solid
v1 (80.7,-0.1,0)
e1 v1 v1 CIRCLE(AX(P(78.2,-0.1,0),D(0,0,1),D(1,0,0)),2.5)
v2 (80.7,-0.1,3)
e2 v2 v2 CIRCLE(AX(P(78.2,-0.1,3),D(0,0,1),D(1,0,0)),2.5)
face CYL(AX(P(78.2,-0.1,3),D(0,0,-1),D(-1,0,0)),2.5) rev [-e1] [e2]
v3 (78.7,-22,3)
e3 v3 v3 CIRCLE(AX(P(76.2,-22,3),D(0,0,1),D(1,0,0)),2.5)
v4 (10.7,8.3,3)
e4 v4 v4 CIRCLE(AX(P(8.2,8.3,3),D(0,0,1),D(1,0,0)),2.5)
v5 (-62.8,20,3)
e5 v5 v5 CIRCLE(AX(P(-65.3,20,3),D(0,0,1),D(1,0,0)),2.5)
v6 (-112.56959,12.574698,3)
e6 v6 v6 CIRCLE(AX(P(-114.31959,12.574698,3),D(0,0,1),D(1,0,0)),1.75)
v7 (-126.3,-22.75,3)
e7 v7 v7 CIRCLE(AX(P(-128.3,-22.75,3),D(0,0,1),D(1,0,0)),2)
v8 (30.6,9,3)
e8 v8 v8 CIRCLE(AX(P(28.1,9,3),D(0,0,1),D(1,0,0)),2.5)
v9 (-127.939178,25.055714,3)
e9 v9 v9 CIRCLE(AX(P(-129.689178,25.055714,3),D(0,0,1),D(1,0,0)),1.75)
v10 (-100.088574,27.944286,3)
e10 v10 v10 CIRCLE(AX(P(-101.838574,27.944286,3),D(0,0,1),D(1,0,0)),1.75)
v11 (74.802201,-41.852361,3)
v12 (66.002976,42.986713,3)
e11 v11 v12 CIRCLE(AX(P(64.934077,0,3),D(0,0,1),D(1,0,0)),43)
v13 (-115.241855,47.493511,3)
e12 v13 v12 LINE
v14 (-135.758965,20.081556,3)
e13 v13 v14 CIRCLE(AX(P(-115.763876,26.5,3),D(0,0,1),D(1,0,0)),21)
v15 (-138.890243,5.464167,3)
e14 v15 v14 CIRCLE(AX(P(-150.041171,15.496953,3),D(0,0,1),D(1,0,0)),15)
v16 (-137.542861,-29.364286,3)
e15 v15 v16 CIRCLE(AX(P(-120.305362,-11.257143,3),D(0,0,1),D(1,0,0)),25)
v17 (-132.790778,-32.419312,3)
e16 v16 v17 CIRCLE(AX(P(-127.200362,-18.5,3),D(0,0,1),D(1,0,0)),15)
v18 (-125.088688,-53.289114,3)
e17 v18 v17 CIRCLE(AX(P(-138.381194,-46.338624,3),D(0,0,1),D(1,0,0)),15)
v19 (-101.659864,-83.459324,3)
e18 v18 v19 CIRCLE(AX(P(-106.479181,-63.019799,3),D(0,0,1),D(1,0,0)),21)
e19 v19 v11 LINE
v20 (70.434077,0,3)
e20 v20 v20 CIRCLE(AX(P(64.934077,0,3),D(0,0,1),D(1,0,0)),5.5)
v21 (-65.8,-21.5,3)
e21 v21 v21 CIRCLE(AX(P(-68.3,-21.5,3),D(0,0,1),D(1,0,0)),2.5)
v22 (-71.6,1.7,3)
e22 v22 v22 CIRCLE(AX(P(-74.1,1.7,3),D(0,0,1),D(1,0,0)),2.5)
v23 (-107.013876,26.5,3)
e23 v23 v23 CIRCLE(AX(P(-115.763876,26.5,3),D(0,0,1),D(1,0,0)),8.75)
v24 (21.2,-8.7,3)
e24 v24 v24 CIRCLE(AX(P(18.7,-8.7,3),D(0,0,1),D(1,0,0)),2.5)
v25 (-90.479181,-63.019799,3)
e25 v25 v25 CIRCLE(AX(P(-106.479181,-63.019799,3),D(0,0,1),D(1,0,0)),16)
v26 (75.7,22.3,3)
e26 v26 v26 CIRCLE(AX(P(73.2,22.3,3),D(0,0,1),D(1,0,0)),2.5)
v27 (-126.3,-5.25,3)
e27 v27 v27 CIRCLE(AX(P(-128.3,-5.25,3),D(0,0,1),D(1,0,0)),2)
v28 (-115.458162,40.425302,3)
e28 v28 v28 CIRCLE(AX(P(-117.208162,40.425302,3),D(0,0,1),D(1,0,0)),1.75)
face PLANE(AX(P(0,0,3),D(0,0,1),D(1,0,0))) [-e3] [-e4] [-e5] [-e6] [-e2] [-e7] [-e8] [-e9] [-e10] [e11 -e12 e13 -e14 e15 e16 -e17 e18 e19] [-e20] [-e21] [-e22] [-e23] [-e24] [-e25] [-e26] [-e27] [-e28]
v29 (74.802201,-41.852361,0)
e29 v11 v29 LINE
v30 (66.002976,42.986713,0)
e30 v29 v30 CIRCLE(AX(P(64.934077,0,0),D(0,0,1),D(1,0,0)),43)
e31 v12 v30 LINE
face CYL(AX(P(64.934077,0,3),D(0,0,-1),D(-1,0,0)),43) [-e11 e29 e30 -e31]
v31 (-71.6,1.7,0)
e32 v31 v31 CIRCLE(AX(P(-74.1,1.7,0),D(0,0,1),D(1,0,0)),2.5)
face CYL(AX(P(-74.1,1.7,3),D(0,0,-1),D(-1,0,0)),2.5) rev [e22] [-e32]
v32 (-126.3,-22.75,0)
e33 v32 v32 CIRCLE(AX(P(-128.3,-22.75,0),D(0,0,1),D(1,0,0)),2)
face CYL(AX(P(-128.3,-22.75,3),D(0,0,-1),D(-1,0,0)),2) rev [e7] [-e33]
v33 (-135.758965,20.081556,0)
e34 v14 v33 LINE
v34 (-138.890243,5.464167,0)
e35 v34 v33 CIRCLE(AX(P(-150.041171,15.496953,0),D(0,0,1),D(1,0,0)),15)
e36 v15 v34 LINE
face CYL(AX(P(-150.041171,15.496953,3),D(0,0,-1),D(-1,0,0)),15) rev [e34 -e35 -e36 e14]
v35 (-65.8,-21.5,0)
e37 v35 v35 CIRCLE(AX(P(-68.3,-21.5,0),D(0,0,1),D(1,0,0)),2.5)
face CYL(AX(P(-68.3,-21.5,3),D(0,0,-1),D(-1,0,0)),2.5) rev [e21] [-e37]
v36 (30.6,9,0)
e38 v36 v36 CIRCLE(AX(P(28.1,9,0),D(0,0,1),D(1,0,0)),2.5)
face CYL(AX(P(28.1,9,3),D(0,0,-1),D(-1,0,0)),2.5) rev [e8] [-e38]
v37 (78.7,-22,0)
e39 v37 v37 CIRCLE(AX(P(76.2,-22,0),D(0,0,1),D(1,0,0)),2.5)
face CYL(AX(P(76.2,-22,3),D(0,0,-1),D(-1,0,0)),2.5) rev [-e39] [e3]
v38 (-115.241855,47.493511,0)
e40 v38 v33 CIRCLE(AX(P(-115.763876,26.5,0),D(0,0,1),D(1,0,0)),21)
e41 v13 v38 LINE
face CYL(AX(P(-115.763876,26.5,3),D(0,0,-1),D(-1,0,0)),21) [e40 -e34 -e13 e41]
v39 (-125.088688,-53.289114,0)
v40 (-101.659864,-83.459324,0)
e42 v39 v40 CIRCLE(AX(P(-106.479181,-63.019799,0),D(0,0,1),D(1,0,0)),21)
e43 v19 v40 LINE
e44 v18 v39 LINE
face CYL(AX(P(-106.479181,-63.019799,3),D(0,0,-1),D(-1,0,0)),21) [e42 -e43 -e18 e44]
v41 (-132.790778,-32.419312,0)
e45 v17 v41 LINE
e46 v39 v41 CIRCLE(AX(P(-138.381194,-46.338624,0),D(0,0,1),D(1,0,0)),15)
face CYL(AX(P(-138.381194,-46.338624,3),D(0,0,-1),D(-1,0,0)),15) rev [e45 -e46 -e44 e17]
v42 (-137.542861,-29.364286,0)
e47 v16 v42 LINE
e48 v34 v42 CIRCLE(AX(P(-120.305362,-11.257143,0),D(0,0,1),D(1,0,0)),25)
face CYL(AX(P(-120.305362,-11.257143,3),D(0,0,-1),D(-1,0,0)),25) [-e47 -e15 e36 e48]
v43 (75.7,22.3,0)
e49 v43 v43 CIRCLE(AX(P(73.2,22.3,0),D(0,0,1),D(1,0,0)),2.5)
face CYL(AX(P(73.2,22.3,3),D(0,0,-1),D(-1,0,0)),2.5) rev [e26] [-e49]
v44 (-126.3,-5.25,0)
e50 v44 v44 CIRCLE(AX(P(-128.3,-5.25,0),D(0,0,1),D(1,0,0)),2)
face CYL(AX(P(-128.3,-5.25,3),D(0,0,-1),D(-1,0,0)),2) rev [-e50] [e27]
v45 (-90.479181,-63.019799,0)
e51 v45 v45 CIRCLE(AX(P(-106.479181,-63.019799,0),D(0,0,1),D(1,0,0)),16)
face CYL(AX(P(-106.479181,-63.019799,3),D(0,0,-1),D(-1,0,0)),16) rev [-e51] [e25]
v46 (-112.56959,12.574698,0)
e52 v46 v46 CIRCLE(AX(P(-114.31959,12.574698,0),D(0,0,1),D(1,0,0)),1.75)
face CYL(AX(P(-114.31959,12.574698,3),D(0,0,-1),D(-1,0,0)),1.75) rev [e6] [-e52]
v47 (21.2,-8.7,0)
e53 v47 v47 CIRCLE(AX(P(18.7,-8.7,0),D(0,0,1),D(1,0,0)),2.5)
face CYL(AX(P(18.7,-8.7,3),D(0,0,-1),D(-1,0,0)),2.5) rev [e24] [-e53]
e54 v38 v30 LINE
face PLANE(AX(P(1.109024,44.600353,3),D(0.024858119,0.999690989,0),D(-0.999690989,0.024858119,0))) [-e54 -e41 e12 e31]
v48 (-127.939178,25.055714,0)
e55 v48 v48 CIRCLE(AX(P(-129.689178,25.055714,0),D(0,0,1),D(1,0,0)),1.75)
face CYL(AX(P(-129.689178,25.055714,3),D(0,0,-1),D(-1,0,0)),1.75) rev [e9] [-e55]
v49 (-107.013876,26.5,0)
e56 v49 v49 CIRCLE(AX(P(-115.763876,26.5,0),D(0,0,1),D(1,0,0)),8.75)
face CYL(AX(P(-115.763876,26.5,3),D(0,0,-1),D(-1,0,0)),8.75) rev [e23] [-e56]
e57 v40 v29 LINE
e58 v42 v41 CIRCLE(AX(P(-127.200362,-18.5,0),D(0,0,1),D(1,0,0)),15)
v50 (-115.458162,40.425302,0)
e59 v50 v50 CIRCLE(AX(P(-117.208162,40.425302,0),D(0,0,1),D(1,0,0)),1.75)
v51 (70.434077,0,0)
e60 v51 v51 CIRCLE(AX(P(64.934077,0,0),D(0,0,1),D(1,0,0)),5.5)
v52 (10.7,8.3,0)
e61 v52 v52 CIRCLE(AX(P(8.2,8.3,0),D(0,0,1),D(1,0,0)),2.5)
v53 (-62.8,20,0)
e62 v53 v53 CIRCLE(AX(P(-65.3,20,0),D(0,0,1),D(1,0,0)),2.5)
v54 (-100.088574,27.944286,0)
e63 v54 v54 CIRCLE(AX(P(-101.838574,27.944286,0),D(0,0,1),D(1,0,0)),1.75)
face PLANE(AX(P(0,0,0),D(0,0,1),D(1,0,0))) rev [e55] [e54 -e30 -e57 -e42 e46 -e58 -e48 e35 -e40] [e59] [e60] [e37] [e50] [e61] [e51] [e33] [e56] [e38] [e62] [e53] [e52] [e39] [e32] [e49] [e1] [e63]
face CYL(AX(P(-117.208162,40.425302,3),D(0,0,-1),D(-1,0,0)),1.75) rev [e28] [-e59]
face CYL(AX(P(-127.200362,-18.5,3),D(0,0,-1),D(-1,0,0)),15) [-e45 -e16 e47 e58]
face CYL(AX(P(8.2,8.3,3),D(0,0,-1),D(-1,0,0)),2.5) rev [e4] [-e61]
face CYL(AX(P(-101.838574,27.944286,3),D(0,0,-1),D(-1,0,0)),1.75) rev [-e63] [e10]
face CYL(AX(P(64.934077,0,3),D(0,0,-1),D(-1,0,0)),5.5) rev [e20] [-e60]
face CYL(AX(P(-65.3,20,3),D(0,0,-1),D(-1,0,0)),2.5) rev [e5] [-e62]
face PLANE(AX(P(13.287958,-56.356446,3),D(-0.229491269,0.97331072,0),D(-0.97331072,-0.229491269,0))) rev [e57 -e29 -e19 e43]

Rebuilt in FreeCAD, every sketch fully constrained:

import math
import FreeCAD as App
import Part
import Sketcher
Q = App.Units.Quantity

doc = App.newDocument("Part")
body = doc.addObject("PartDesign::Body", "Body")

sketch1 = doc.addObject("Sketcher::SketchObject", "Sketch")
body.addObject(sketch1)
sketch1.AttachmentSupport = (doc.XY_Plane, [""])
sketch1.MapMode = "FlatFace"
sketch1.addGeometry(Part.LineSegment(App.Vector(-101.7, -83.5, 0), App.Vector(74.8, -41.9, 0)), False)
sketch1.addGeometry(Part.ArcOfCircle(Part.Circle(App.Vector(64.9, 0, 0), App.Vector(0, 0, 1), 43), math.radians(-77), math.radians(89)), False)
sketch1.addGeometry(Part.LineSegment(App.Vector(66, 43, 0), App.Vector(-115.2, 47.5, 0)), False)
sketch1.addGeometry(Part.ArcOfCircle(Part.Circle(App.Vector(-115.8, 26.5, 0), App.Vector(0, 0, 1), 21), math.radians(89), math.radians(198)), False)
sketch1.addGeometry(Part.ArcOfCircle(Part.Circle(App.Vector(-150, 15.5, 0), App.Vector(0, 0, 1), 15), math.radians(-42), math.radians(18)), False)
sketch1.addGeometry(Part.ArcOfCircle(Part.Circle(App.Vector(-120.3, -11.3, 0), App.Vector(0, 0, 1), 25), math.radians(138), math.radians(226)), False)
sketch1.addGeometry(Part.ArcOfCircle(Part.Circle(App.Vector(-127.2, -18.5, 0), App.Vector(0, 0, 1), 15), math.radians(-134), math.radians(-112)), False)
sketch1.addGeometry(Part.ArcOfCircle(Part.Circle(App.Vector(-138.4, -46.3, 0), App.Vector(0, 0, 1), 15), math.radians(-28), math.radians(68)), False)
sketch1.addGeometry(Part.ArcOfCircle(Part.Circle(App.Vector(-106.5, -63, 0), App.Vector(0, 0, 1), 21), math.radians(152), math.radians(283)), False)
sketch1.addGeometry(Part.Circle(App.Vector(-106.5, -63, 0), App.Vector(0, 0, 1), 16), False)
sketch1.addGeometry(Part.Circle(App.Vector(-128.3, -22.8, 0), App.Vector(0, 0, 1), 2), False)
sketch1.addGeometry(Part.Circle(App.Vector(-68.3, -21.5, 0), App.Vector(0, 0, 1), 2.5), False)
sketch1.addGeometry(Part.Circle(App.Vector(76.2, -22, 0), App.Vector(0, 0, 1), 2.5), False)
sketch1.addGeometry(Part.Circle(App.Vector(-128.3, -5.2, 0), App.Vector(0, 0, 1), 2), False)
sketch1.addGeometry(Part.Circle(App.Vector(-74.1, 1.7, 0), App.Vector(0, 0, 1), 2.5), False)
sketch1.addGeometry(Part.Circle(App.Vector(-114.3, 12.6, 0), App.Vector(0, 0, 1), 1.8), False)
sketch1.addGeometry(Part.Circle(App.Vector(-129.7, 25.1, 0), App.Vector(0, 0, 1), 1.8), False)
sketch1.addGeometry(Part.Circle(App.Vector(-115.8, 26.5, 0), App.Vector(0, 0, 1), 8.8), False)
sketch1.addGeometry(Part.Circle(App.Vector(-117.2, 40.4, 0), App.Vector(0, 0, 1), 1.8), False)
sketch1.addGeometry(Part.Circle(App.Vector(-101.8, 27.9, 0), App.Vector(0, 0, 1), 1.8), False)
sketch1.addGeometry(Part.Circle(App.Vector(-65.3, 20, 0), App.Vector(0, 0, 1), 2.5), False)
sketch1.addGeometry(Part.Circle(App.Vector(18.7, -8.7, 0), App.Vector(0, 0, 1), 2.5), False)
sketch1.addGeometry(Part.Circle(App.Vector(8.2, 8.3, 0), App.Vector(0, 0, 1), 2.5), False)
sketch1.addGeometry(Part.Circle(App.Vector(28.1, 9, 0), App.Vector(0, 0, 1), 2.5), False)
sketch1.addGeometry(Part.Circle(App.Vector(64.9, 0, 0), App.Vector(0, 0, 1), 5.5), False)
sketch1.addGeometry(Part.Circle(App.Vector(78.2, -0.1, 0), App.Vector(0, 0, 1), 2.5), False)
sketch1.addGeometry(Part.Circle(App.Vector(73.2, 22.3, 0), App.Vector(0, 0, 1), 2.5), False)
sketch1.addConstraint(Sketcher.Constraint("Tangent", 0, 2, 1, 1))
sketch1.addConstraint(Sketcher.Constraint("Tangent", 1, 2, 2, 1))
sketch1.addConstraint(Sketcher.Constraint("Tangent", 2, 2, 3, 1))
sketch1.addConstraint(Sketcher.Constraint("Tangent", 3, 2, 4, 2))
sketch1.addConstraint(Sketcher.Constraint("Tangent", 4, 1, 5, 1))
sketch1.addConstraint(Sketcher.Constraint("Tangent", 5, 2, 6, 1))
sketch1.addConstraint(Sketcher.Constraint("Tangent", 6, 2, 7, 2))
sketch1.addConstraint(Sketcher.Constraint("Tangent", 7, 1, 8, 1))
sketch1.addConstraint(Sketcher.Constraint("Tangent", 8, 2, 0, 1))
sketch1.addConstraint(Sketcher.Constraint("Coincident", 9, 3, 8, 3))
sketch1.addConstraint(Sketcher.Constraint("Coincident", 17, 3, 3, 3))
sketch1.addConstraint(Sketcher.Constraint("Coincident", 24, 3, 1, 3))
sketch1.addConstraint(Sketcher.Constraint("Equal", 4, 6))
sketch1.addConstraint(Sketcher.Constraint("Equal", 6, 7))
sketch1.addConstraint(Sketcher.Constraint("Equal", 3, 8))
sketch1.addConstraint(Sketcher.Constraint("Equal", 11, 12))
sketch1.addConstraint(Sketcher.Constraint("Equal", 10, 13))
sketch1.addConstraint(Sketcher.Constraint("Equal", 12, 14))
sketch1.addConstraint(Sketcher.Constraint("Equal", 15, 16))
sketch1.addConstraint(Sketcher.Constraint("Equal", 16, 18))
sketch1.addConstraint(Sketcher.Constraint("Equal", 18, 19))
sketch1.addConstraint(Sketcher.Constraint("Equal", 14, 20))
sketch1.addConstraint(Sketcher.Constraint("Equal", 20, 21))
sketch1.addConstraint(Sketcher.Constraint("Equal", 21, 22))
sketch1.addConstraint(Sketcher.Constraint("Equal", 22, 23))
sketch1.addConstraint(Sketcher.Constraint("Equal", 23, 25))
sketch1.addConstraint(Sketcher.Constraint("Equal", 25, 26))
sketch1.addConstraint(Sketcher.Constraint("PointOnObject", 1, 3, -1))
sketch1.addConstraint(Sketcher.Constraint("Vertical", 10, 3, 13, 3))
sketch1.addConstraint(Sketcher.Constraint("Diameter", 9, Q("32 mm")))
sketch1.addConstraint(Sketcher.Constraint("Diameter", 10, Q("4 mm")))
sketch1.addConstraint(Sketcher.Constraint("Diameter", 11, Q("5 mm")))
sketch1.addConstraint(Sketcher.Constraint("Diameter", 24, Q("11 mm")))
sketch1.addConstraint(Sketcher.Constraint("Radius", 1, Q("43 mm")))
sketch1.addConstraint(Sketcher.Constraint("Radius", 3, Q("21 mm")))
sketch1.addConstraint(Sketcher.Constraint("Radius", 4, Q("15 mm")))
sketch1.addConstraint(Sketcher.Constraint("Radius", 5, Q("25 mm")))
sketch1.addConstraint(Sketcher.Constraint("Diameter", 15, Q("3.5 mm")))
sketch1.addConstraint(Sketcher.Constraint("Diameter", 17, Q("17.5 mm")))
sketch1.addConstraint(Sketcher.Constraint("DistanceY", 12, 3, -1, 1, Q("22 mm")))
sketch1.addConstraint(Sketcher.Constraint("DistanceY", -1, 1, 20, 3, Q("20 mm")))
sketch1.addConstraint(Sketcher.Constraint("DistanceY", -1, 1, 23, 3, Q("9 mm")))
sketch1.addConstraint(Sketcher.Constraint("DistanceY", 6, 3, 3, 3, Q("45 mm")))
sketch1.addConstraint(Sketcher.Constraint("DistanceY", 11, 3, 6, 3, Q("3 mm")))
sketch1.addConstraint(Sketcher.Constraint("DistanceX", 10, 3, 11, 3, Q("60 mm")))
sketch1.addConstraint(Sketcher.Constraint("DistanceX", 11, 3, 20, 3, Q("3 mm")))
sketch1.addConstraint(Sketcher.Constraint("DistanceX", 11, 3, 21, 3, Q("87 mm")))
sketch1.addConstraint(Sketcher.Constraint("DistanceY", 21, 3, 22, 3, Q("17 mm")))
sketch1.addConstraint(Sketcher.Constraint("DistanceX", 22, 3, 12, 3, Q("68 mm")))
sketch1.addConstraint(Sketcher.Constraint("DistanceX", 12, 3, 25, 3, Q("2 mm")))
sketch1.addConstraint(Sketcher.Constraint("DistanceX", 26, 3, 25, 3, Q("5 mm")))
sketch1.addConstraint(Sketcher.Constraint("DistanceY", -1, 1, 3, 3, Q("26.5 mm")))
sketch1.addConstraint(Sketcher.Constraint("DistanceX", 10, 3, -1, 1, Q("128.3 mm")))
sketch1.addConstraint(Sketcher.Constraint("DistanceX", -1, 1, 12, 3, Q("76.2 mm")))
sketch1.addConstraint(Sketcher.Constraint("DistanceX", 14, 3, -1, 1, Q("74.1 mm")))
sketch1.addConstraint(Sketcher.Constraint("DistanceY", -1, 1, 14, 3, Q("1.7 mm")))
sketch1.addConstraint(Sketcher.Constraint("DistanceY", 21, 3, -1, 1, Q("8.7 mm")))
sketch1.addConstraint(Sketcher.Constraint("DistanceX", -1, 1, 23, 3, Q("28.1 mm")))
sketch1.addConstraint(Sketcher.Constraint("DistanceY", 25, 3, -1, 1, Q("0.1 mm")))
sketch1.addConstraint(Sketcher.Constraint("DistanceY", -1, 1, 26, 3, Q("22.3 mm")))
sketch1.addConstraint(Sketcher.Constraint("DistanceY", 10, 3, 13, 3, Q("17.5 mm")))
sketch1.addConstraint(Sketcher.Constraint("DistanceY", 10, 3, -1, 1, Q("22.75 mm")))
sketch1.addConstraint(Sketcher.Constraint("DistanceX", 6, 3, 5, 3, Q("6.895 mm")))
sketch1.addConstraint(Sketcher.Constraint("DistanceY", 8, 3, -1, 1, Q("63.019799 mm")))
sketch1.addConstraint(Sketcher.Constraint("DistanceY", 8, 2, 7, 3, Q("37.1207 mm")))
sketch1.addConstraint(Sketcher.Constraint("Distance", 0, Q("181.300851 mm")))
sketch1.addConstraint(Sketcher.Constraint("DistanceX", 4, 3, -1, 1, Q("150.041171 mm")))
sketch1.addConstraint(Sketcher.Constraint("DistanceX", 6, 3, -1, 1, Q("127.200362 mm")))
sketch1.addConstraint(Sketcher.Constraint("DistanceX", 15, 3, -1, 1, Q("114.31959 mm")))
sketch1.addConstraint(Sketcher.Constraint("DistanceX", 18, 3, -1, 1, Q("117.208162 mm")))
sketch1.addConstraint(Sketcher.Constraint("DistanceY", 5, 3, 15, 3, Q("23.831841 mm")))
sketch1.addConstraint(Sketcher.Constraint("DistanceY", 4, 3, 16, 3, Q("9.558761 mm")))
sketch1.addConstraint(Sketcher.Constraint("DistanceY", 4, 3, 18, 3, Q("24.928349 mm")))
sketch1.addConstraint(Sketcher.Constraint("DistanceY", 16, 3, 19, 3, Q("2.888572 mm")))
sketch1.addConstraint(Sketcher.Constraint("DistanceX", 2, 2, 19, 3, Q("13.403282 mm")))
sketch1.addConstraint(Sketcher.Constraint("DistanceX", 16, 3, -1, 1, Q("129.689178 mm")))
pad1 = doc.addObject("PartDesign::Pad", "Pad")
body.addObject(pad1)
pad1.Profile = sketch1
pad1.Length = 3

doc.recompute()
